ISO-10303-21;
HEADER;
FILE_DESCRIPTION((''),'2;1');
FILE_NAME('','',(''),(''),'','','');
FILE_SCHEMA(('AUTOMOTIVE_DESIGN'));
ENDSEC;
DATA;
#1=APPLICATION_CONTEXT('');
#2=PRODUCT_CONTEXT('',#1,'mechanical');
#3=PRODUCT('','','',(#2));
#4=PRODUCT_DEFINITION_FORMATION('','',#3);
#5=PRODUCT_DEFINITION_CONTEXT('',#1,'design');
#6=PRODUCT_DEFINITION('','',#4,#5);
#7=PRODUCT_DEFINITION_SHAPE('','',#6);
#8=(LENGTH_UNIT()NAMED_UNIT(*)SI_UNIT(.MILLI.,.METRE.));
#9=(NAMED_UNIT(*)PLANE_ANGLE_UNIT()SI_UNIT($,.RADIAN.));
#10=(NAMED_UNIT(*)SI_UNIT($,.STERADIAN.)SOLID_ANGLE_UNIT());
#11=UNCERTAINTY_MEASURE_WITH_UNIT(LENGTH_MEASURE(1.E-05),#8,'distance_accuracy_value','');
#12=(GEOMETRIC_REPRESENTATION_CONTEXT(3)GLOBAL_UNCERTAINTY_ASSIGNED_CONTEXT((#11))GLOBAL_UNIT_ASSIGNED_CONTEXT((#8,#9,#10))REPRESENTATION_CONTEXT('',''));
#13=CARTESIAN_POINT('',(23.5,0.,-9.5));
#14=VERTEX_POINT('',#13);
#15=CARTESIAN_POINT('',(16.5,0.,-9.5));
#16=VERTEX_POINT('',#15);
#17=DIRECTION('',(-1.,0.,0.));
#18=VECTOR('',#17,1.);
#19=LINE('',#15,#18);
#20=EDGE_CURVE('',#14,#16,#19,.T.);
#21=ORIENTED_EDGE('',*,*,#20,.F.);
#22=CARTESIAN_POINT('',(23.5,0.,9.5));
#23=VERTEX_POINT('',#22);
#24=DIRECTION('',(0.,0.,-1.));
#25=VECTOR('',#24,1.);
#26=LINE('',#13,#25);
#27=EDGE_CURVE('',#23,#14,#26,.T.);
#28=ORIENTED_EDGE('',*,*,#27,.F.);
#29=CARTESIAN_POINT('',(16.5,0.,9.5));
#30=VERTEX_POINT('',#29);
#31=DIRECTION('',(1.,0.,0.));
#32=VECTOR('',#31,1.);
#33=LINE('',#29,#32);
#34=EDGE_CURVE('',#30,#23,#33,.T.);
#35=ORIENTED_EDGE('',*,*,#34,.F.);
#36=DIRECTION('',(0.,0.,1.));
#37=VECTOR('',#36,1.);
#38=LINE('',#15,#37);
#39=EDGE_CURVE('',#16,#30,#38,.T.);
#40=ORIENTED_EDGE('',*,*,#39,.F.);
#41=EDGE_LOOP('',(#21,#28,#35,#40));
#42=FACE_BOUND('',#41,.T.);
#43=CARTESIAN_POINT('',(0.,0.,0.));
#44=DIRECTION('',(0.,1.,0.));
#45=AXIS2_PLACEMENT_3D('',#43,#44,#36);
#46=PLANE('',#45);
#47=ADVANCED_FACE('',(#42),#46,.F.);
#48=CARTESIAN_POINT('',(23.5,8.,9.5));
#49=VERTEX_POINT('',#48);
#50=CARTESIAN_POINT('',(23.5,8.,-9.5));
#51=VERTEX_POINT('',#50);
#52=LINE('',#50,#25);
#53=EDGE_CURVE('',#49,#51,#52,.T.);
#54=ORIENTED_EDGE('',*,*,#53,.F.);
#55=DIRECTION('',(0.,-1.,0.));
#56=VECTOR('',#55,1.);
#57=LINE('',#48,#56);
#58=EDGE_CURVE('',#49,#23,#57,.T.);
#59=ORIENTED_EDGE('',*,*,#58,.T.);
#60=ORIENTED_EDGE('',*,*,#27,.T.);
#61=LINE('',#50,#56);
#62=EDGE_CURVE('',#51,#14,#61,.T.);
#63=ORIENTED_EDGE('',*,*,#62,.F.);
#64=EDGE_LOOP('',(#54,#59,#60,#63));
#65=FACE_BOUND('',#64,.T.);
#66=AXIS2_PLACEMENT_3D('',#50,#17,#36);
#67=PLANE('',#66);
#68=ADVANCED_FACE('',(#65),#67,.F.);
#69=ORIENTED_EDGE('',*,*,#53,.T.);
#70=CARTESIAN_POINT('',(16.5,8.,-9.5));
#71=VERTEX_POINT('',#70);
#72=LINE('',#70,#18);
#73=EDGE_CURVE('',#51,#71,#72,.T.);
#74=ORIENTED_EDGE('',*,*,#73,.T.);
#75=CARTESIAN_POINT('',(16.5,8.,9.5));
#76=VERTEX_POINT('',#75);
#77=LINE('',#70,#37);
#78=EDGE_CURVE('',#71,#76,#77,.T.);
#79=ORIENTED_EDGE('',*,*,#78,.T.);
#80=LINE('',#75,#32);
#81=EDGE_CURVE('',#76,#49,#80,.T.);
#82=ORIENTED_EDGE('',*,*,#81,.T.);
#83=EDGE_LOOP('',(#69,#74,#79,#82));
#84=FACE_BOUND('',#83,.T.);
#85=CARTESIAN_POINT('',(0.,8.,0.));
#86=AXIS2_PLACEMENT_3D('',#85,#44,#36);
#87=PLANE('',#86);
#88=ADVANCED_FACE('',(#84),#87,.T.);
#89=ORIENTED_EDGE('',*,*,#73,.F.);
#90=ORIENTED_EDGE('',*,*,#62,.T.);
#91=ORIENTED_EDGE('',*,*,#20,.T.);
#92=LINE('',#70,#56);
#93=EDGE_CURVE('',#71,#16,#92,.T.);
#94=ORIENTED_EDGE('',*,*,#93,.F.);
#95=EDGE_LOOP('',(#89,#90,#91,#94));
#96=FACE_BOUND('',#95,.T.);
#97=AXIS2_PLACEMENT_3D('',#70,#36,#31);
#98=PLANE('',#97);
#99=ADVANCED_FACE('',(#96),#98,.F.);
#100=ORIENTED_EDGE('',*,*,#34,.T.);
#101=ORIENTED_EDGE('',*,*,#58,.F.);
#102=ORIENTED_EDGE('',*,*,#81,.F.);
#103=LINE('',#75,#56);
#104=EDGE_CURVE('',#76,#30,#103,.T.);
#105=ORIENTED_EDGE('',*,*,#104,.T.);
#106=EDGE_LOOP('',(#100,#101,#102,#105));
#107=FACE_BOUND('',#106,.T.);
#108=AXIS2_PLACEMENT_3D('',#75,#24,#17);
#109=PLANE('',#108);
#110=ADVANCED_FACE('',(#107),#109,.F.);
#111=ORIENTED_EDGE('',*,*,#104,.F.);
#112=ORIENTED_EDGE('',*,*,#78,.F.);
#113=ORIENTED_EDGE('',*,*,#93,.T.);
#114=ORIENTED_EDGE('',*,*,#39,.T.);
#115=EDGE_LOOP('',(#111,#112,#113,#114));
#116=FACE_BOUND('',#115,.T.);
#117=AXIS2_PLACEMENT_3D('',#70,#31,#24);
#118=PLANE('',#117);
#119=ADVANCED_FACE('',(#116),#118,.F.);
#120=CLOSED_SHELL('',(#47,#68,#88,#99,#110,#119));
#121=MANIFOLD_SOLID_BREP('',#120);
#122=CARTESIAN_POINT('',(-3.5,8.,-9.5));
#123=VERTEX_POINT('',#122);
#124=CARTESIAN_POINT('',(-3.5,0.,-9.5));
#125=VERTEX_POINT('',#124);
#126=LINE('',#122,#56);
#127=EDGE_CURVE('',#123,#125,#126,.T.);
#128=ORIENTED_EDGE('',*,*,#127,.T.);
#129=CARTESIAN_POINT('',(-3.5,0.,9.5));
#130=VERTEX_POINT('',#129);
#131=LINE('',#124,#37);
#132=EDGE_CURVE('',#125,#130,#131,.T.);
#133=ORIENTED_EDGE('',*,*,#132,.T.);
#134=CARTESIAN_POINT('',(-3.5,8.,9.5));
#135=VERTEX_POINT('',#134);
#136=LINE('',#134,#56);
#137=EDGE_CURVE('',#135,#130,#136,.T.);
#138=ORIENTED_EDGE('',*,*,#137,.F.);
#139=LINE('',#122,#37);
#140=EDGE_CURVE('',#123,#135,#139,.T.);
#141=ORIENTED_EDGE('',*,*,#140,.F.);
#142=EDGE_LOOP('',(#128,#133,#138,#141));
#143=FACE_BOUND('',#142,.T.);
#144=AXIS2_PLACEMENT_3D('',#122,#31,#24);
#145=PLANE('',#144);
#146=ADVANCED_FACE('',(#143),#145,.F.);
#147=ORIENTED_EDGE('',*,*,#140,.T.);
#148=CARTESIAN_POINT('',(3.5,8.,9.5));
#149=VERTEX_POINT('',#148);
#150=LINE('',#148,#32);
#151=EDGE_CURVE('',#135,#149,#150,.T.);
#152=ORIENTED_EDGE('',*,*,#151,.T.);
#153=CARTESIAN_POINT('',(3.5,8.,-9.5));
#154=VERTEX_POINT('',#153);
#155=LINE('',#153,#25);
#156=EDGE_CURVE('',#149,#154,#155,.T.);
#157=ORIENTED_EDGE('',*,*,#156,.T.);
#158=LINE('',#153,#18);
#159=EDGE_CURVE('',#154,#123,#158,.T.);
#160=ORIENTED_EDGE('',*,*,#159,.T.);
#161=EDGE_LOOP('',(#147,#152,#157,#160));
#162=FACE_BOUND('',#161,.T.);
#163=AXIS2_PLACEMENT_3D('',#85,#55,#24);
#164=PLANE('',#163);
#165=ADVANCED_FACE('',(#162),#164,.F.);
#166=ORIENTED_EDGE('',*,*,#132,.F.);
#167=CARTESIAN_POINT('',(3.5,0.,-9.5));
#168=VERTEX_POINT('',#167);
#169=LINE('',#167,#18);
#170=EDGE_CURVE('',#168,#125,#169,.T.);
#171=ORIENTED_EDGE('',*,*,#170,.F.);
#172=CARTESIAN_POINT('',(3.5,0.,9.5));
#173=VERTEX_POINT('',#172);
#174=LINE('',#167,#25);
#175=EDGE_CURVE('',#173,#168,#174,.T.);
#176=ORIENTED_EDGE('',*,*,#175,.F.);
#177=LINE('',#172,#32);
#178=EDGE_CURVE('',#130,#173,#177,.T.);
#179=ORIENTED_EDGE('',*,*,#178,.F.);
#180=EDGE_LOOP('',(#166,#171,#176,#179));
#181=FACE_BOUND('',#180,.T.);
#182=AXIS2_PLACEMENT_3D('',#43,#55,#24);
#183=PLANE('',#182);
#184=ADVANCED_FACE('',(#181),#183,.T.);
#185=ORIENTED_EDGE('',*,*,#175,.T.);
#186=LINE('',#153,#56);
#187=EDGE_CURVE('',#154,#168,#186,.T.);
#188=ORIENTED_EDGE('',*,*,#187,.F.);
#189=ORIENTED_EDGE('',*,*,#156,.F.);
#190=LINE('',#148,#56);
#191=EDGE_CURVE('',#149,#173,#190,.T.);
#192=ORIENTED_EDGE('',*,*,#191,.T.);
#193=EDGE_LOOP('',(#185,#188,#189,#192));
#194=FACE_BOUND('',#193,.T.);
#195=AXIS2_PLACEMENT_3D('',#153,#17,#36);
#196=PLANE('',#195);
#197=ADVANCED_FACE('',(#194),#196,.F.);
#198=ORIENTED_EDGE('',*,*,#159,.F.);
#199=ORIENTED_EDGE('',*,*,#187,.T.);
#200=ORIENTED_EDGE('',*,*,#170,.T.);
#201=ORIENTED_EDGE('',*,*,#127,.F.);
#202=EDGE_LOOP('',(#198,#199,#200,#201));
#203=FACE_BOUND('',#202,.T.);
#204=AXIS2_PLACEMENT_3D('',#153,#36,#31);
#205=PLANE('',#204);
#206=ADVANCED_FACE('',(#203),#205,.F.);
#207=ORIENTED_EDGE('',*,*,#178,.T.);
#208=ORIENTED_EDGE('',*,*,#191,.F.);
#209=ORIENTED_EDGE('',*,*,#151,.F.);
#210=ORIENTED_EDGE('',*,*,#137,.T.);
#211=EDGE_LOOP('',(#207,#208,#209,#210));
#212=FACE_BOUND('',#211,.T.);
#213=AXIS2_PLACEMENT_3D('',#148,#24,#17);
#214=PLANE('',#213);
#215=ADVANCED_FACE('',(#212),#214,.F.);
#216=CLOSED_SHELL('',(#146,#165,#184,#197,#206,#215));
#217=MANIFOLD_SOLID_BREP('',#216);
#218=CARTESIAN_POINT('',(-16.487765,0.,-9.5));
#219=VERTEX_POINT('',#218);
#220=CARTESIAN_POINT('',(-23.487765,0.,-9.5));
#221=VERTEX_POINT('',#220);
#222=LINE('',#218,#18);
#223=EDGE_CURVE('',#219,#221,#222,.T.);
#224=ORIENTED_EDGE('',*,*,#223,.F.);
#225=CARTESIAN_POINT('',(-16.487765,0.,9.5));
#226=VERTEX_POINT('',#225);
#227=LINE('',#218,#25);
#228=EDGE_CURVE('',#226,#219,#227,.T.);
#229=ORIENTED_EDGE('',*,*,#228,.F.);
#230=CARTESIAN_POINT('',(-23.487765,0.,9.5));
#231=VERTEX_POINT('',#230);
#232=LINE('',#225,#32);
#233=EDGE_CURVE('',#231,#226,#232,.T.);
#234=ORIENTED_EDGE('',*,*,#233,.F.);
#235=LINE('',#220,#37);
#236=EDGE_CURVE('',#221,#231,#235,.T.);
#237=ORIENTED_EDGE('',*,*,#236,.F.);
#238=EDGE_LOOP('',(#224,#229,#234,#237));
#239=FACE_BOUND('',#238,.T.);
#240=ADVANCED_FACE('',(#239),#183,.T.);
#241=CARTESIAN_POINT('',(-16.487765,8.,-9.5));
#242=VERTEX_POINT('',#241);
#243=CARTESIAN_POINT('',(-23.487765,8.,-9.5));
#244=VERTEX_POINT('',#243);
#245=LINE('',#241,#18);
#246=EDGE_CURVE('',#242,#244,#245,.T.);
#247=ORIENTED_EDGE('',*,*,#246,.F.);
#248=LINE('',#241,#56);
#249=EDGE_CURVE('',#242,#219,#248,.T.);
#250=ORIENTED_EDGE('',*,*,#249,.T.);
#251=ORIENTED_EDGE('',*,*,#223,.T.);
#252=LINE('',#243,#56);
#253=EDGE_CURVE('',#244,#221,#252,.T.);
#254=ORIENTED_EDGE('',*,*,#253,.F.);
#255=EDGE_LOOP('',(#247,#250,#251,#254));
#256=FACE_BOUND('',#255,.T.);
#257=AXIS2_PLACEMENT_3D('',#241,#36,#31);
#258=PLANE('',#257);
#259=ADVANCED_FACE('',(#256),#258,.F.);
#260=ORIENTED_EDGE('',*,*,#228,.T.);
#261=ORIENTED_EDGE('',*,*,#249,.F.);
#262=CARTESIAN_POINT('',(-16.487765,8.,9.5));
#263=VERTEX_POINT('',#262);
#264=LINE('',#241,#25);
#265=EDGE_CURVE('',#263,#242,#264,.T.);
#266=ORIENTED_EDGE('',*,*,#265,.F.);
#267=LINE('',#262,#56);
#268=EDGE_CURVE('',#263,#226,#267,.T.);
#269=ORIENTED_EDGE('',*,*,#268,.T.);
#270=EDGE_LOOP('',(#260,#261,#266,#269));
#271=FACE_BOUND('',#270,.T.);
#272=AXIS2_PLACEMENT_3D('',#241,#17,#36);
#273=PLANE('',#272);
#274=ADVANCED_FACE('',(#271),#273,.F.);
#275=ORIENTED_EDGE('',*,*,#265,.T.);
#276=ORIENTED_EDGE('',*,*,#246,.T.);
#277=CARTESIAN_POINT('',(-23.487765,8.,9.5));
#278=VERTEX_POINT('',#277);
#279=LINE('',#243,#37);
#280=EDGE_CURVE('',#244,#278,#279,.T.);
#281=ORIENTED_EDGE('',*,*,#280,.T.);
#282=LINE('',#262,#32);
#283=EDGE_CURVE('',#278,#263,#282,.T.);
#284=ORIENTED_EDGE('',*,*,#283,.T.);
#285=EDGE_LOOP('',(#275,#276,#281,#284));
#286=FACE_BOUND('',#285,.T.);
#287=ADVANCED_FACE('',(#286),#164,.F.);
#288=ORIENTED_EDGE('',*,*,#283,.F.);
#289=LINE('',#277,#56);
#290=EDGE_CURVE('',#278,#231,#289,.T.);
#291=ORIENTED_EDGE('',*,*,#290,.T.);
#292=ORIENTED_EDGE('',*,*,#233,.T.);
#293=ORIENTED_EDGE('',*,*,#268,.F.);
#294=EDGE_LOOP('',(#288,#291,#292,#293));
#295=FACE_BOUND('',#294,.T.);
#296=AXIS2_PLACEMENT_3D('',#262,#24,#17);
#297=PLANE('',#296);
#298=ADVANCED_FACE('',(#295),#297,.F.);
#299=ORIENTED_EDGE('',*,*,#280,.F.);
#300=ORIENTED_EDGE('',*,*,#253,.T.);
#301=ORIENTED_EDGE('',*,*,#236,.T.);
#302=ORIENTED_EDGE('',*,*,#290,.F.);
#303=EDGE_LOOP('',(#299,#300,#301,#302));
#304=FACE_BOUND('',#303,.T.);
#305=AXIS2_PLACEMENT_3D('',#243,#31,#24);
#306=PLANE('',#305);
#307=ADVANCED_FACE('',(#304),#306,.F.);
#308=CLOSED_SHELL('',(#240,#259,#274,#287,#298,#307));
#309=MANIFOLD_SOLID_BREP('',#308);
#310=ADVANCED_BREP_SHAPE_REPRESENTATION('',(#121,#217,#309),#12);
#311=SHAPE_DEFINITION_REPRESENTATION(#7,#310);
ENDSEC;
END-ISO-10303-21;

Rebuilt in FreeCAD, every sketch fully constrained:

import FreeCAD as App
import Part
import Sketcher
from FreeCAD import Vector


def add_polygon(sketch, points):
    """Adds a closed chain of lines whose ends are joined by coincident constraints."""
    first, n = sketch.GeometryCount, len(points)
    for a, b in zip(points, points[1:] + points[:1]):
        sketch.addGeometry(Part.LineSegment(App.Vector(*a, 0), App.Vector(*b, 0)), False)
    for i in range(n):
        sketch.addConstraint(Sketcher.Constraint("Coincident", first + i, 2, first + (i + 1) % n, 1))

doc = App.newDocument("Part")
body = doc.addObject("PartDesign::Body", "Body")

# Sketch on XZ plane
sketch1 = doc.addObject("Sketcher::SketchObject", "Sketch")
body.addObject(sketch1)
sketch1.AttachmentSupport = (doc.XZ_Plane, [""])
sketch1.MapMode = "FlatFace"
add_polygon(sketch1, [(-3.5, -9.5), (-3.5, 9.5), (3.5, 9.5), (3.5, -9.5)])  # lines 0-3
sketch1.addConstraint([
    Sketcher.Constraint("Vertical", 0),
    Sketcher.Constraint("Horizontal", 1),
    Sketcher.Constraint("Vertical", 2),
    Sketcher.Constraint("Horizontal", 3),
    Sketcher.Constraint("Symmetric", 0, 2, 2, 2, -1, 1),
    Sketcher.Constraint("DistanceX", 1, 1, 1, 2, 7.0),
    Sketcher.Constraint("DistanceY", 0, 1, 0, 2, 19.0),
])
pad1 = doc.addObject("PartDesign::Pad", "Pad")
body.addObject(pad1)
pad1.Profile = sketch1
pad1.Length = 8
pad1.Reversed = True
body2 = doc.addObject("PartDesign::Body", "Body001")

# Sketch on XZ plane
sketch2 = doc.addObject("Sketcher::SketchObject", "Sketch001")
body2.addObject(sketch2)
sketch2.AttachmentSupport = (doc.getObject("XZ_Plane001"), [""])
sketch2.MapMode = "FlatFace"
add_polygon(sketch2, [(16.5, -9.5), (16.5, 9.5), (23.5, 9.5), (23.5, -9.5)])  # lines 0-3
sketch2.addConstraint([
    Sketcher.Constraint("Vertical", 0),
    Sketcher.Constraint("Horizontal", 1),
    Sketcher.Constraint("Vertical", 2),
    Sketcher.Constraint("Horizontal", 3),
    Sketcher.Constraint("DistanceX", 1, 1, 1, 2, 7.0),
    Sketcher.Constraint("DistanceY", 0, 1, 0, 2, 19.0),
    Sketcher.Constraint("DistanceX", -1, 1, 0, 2, 16.5),
    Sketcher.Constraint("DistanceY", -1, 1, 0, 2, 9.5),
])
pad2 = doc.addObject("PartDesign::Pad", "Pad001")
body2.addObject(pad2)
pad2.Profile = sketch2
pad2.Length = 8
pad2.Reversed = True
body3 = doc.addObject("PartDesign::Body", "Body002")

# Sketch on XZ plane
sketch3 = doc.addObject("Sketcher::SketchObject", "Sketch002")
body3.addObject(sketch3)
sketch3.AttachmentSupport = (doc.getObject("XZ_Plane002"), [""])
sketch3.MapMode = "FlatFace"
add_polygon(sketch3, [(-23.487765, -9.5), (-23.487765, 9.5), (-16.487765, 9.5), (-16.487765, -9.5)])  # lines 0-3
sketch3.addConstraint([
    Sketcher.Constraint("Vertical", 0),
    Sketcher.Constraint("Horizontal", 1),
    Sketcher.Constraint("Vertical", 2),
    Sketcher.Constraint("Horizontal", 3),
    Sketcher.Constraint("DistanceX", 1, 1, 1, 2, 7.0),
    Sketcher.Constraint("DistanceY", 0, 1, 0, 2, 19.0),
    Sketcher.Constraint("DistanceY", -1, 1, 0, 2, 9.5),
    Sketcher.Constraint("DistanceX", 0, 2, -1, 1, 23.487765),
])
pad3 = doc.addObject("PartDesign::Pad", "Pad002")
body3.addObject(pad3)
pad3.Profile = sketch3
pad3.Length = 8
pad3.Reversed = True

doc.recompute()
